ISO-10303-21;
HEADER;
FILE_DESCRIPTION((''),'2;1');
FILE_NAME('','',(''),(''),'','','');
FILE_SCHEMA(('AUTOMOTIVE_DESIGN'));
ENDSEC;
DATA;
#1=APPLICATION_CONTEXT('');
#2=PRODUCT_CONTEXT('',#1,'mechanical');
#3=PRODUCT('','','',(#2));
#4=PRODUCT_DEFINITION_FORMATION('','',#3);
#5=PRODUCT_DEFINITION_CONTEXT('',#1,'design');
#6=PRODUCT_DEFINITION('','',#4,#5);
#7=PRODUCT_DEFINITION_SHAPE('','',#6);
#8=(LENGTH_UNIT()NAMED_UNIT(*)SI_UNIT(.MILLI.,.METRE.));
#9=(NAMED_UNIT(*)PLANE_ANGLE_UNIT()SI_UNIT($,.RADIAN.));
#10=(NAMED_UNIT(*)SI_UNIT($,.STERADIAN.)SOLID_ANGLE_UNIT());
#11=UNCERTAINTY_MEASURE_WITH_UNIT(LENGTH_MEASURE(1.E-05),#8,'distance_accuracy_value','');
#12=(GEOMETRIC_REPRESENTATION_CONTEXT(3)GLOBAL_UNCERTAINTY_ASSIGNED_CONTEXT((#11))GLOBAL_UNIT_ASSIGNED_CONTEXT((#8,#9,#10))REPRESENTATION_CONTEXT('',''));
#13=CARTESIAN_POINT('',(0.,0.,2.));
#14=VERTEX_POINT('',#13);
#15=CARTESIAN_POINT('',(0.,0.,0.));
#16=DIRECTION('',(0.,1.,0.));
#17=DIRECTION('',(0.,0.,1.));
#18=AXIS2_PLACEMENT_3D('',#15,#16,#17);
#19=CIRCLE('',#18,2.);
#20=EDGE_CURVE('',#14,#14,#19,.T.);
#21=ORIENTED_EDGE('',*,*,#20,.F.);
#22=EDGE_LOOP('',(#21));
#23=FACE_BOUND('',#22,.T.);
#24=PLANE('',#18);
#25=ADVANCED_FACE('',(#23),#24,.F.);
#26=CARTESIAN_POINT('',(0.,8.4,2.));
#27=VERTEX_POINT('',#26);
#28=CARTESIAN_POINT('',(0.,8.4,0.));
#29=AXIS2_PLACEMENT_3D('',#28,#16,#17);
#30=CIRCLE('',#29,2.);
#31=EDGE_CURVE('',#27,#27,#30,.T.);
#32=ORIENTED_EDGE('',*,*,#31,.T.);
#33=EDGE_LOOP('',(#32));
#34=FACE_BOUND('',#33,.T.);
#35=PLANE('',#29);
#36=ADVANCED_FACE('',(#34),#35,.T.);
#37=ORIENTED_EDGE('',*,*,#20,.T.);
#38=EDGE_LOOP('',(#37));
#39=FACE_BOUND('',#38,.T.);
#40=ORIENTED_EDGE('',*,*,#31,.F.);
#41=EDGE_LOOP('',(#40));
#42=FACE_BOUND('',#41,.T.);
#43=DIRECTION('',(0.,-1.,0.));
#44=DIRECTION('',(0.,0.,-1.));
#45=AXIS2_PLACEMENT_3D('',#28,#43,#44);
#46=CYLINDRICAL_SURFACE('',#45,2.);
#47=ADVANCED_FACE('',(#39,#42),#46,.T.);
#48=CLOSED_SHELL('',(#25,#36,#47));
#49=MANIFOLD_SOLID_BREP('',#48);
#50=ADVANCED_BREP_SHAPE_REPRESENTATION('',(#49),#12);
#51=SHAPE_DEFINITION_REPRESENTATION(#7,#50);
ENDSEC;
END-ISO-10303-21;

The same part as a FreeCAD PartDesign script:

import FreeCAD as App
import Part
import Sketcher
from FreeCAD import Vector
Q = App.Units.Quantity

doc = App.newDocument("Part")
body = doc.addObject("PartDesign::Body", "Body")

sketch1 = body.newObject("Sketcher::SketchObject", "Sketch")
sketch1.AttachmentSupport = (doc.getObject("XZ_Plane"), [""])
sketch1.MapMode = "FlatFace"
sketch1.addGeometry(Part.Circle(Vector(0, 0, 0), Vector(0, 0, 1), 2), False)
sketch1.addConstraint(Sketcher.Constraint("Coincident", 0, 3, -1, 1))
sketch1.addConstraint(Sketcher.Constraint("Diameter", 0, Q("4 mm")))
pad1 = body.newObject("PartDesign::Pad", "Pad")
pad1.Profile = sketch1
pad1.Length = 8.4
pad1.Reversed = True

doc.recompute()
